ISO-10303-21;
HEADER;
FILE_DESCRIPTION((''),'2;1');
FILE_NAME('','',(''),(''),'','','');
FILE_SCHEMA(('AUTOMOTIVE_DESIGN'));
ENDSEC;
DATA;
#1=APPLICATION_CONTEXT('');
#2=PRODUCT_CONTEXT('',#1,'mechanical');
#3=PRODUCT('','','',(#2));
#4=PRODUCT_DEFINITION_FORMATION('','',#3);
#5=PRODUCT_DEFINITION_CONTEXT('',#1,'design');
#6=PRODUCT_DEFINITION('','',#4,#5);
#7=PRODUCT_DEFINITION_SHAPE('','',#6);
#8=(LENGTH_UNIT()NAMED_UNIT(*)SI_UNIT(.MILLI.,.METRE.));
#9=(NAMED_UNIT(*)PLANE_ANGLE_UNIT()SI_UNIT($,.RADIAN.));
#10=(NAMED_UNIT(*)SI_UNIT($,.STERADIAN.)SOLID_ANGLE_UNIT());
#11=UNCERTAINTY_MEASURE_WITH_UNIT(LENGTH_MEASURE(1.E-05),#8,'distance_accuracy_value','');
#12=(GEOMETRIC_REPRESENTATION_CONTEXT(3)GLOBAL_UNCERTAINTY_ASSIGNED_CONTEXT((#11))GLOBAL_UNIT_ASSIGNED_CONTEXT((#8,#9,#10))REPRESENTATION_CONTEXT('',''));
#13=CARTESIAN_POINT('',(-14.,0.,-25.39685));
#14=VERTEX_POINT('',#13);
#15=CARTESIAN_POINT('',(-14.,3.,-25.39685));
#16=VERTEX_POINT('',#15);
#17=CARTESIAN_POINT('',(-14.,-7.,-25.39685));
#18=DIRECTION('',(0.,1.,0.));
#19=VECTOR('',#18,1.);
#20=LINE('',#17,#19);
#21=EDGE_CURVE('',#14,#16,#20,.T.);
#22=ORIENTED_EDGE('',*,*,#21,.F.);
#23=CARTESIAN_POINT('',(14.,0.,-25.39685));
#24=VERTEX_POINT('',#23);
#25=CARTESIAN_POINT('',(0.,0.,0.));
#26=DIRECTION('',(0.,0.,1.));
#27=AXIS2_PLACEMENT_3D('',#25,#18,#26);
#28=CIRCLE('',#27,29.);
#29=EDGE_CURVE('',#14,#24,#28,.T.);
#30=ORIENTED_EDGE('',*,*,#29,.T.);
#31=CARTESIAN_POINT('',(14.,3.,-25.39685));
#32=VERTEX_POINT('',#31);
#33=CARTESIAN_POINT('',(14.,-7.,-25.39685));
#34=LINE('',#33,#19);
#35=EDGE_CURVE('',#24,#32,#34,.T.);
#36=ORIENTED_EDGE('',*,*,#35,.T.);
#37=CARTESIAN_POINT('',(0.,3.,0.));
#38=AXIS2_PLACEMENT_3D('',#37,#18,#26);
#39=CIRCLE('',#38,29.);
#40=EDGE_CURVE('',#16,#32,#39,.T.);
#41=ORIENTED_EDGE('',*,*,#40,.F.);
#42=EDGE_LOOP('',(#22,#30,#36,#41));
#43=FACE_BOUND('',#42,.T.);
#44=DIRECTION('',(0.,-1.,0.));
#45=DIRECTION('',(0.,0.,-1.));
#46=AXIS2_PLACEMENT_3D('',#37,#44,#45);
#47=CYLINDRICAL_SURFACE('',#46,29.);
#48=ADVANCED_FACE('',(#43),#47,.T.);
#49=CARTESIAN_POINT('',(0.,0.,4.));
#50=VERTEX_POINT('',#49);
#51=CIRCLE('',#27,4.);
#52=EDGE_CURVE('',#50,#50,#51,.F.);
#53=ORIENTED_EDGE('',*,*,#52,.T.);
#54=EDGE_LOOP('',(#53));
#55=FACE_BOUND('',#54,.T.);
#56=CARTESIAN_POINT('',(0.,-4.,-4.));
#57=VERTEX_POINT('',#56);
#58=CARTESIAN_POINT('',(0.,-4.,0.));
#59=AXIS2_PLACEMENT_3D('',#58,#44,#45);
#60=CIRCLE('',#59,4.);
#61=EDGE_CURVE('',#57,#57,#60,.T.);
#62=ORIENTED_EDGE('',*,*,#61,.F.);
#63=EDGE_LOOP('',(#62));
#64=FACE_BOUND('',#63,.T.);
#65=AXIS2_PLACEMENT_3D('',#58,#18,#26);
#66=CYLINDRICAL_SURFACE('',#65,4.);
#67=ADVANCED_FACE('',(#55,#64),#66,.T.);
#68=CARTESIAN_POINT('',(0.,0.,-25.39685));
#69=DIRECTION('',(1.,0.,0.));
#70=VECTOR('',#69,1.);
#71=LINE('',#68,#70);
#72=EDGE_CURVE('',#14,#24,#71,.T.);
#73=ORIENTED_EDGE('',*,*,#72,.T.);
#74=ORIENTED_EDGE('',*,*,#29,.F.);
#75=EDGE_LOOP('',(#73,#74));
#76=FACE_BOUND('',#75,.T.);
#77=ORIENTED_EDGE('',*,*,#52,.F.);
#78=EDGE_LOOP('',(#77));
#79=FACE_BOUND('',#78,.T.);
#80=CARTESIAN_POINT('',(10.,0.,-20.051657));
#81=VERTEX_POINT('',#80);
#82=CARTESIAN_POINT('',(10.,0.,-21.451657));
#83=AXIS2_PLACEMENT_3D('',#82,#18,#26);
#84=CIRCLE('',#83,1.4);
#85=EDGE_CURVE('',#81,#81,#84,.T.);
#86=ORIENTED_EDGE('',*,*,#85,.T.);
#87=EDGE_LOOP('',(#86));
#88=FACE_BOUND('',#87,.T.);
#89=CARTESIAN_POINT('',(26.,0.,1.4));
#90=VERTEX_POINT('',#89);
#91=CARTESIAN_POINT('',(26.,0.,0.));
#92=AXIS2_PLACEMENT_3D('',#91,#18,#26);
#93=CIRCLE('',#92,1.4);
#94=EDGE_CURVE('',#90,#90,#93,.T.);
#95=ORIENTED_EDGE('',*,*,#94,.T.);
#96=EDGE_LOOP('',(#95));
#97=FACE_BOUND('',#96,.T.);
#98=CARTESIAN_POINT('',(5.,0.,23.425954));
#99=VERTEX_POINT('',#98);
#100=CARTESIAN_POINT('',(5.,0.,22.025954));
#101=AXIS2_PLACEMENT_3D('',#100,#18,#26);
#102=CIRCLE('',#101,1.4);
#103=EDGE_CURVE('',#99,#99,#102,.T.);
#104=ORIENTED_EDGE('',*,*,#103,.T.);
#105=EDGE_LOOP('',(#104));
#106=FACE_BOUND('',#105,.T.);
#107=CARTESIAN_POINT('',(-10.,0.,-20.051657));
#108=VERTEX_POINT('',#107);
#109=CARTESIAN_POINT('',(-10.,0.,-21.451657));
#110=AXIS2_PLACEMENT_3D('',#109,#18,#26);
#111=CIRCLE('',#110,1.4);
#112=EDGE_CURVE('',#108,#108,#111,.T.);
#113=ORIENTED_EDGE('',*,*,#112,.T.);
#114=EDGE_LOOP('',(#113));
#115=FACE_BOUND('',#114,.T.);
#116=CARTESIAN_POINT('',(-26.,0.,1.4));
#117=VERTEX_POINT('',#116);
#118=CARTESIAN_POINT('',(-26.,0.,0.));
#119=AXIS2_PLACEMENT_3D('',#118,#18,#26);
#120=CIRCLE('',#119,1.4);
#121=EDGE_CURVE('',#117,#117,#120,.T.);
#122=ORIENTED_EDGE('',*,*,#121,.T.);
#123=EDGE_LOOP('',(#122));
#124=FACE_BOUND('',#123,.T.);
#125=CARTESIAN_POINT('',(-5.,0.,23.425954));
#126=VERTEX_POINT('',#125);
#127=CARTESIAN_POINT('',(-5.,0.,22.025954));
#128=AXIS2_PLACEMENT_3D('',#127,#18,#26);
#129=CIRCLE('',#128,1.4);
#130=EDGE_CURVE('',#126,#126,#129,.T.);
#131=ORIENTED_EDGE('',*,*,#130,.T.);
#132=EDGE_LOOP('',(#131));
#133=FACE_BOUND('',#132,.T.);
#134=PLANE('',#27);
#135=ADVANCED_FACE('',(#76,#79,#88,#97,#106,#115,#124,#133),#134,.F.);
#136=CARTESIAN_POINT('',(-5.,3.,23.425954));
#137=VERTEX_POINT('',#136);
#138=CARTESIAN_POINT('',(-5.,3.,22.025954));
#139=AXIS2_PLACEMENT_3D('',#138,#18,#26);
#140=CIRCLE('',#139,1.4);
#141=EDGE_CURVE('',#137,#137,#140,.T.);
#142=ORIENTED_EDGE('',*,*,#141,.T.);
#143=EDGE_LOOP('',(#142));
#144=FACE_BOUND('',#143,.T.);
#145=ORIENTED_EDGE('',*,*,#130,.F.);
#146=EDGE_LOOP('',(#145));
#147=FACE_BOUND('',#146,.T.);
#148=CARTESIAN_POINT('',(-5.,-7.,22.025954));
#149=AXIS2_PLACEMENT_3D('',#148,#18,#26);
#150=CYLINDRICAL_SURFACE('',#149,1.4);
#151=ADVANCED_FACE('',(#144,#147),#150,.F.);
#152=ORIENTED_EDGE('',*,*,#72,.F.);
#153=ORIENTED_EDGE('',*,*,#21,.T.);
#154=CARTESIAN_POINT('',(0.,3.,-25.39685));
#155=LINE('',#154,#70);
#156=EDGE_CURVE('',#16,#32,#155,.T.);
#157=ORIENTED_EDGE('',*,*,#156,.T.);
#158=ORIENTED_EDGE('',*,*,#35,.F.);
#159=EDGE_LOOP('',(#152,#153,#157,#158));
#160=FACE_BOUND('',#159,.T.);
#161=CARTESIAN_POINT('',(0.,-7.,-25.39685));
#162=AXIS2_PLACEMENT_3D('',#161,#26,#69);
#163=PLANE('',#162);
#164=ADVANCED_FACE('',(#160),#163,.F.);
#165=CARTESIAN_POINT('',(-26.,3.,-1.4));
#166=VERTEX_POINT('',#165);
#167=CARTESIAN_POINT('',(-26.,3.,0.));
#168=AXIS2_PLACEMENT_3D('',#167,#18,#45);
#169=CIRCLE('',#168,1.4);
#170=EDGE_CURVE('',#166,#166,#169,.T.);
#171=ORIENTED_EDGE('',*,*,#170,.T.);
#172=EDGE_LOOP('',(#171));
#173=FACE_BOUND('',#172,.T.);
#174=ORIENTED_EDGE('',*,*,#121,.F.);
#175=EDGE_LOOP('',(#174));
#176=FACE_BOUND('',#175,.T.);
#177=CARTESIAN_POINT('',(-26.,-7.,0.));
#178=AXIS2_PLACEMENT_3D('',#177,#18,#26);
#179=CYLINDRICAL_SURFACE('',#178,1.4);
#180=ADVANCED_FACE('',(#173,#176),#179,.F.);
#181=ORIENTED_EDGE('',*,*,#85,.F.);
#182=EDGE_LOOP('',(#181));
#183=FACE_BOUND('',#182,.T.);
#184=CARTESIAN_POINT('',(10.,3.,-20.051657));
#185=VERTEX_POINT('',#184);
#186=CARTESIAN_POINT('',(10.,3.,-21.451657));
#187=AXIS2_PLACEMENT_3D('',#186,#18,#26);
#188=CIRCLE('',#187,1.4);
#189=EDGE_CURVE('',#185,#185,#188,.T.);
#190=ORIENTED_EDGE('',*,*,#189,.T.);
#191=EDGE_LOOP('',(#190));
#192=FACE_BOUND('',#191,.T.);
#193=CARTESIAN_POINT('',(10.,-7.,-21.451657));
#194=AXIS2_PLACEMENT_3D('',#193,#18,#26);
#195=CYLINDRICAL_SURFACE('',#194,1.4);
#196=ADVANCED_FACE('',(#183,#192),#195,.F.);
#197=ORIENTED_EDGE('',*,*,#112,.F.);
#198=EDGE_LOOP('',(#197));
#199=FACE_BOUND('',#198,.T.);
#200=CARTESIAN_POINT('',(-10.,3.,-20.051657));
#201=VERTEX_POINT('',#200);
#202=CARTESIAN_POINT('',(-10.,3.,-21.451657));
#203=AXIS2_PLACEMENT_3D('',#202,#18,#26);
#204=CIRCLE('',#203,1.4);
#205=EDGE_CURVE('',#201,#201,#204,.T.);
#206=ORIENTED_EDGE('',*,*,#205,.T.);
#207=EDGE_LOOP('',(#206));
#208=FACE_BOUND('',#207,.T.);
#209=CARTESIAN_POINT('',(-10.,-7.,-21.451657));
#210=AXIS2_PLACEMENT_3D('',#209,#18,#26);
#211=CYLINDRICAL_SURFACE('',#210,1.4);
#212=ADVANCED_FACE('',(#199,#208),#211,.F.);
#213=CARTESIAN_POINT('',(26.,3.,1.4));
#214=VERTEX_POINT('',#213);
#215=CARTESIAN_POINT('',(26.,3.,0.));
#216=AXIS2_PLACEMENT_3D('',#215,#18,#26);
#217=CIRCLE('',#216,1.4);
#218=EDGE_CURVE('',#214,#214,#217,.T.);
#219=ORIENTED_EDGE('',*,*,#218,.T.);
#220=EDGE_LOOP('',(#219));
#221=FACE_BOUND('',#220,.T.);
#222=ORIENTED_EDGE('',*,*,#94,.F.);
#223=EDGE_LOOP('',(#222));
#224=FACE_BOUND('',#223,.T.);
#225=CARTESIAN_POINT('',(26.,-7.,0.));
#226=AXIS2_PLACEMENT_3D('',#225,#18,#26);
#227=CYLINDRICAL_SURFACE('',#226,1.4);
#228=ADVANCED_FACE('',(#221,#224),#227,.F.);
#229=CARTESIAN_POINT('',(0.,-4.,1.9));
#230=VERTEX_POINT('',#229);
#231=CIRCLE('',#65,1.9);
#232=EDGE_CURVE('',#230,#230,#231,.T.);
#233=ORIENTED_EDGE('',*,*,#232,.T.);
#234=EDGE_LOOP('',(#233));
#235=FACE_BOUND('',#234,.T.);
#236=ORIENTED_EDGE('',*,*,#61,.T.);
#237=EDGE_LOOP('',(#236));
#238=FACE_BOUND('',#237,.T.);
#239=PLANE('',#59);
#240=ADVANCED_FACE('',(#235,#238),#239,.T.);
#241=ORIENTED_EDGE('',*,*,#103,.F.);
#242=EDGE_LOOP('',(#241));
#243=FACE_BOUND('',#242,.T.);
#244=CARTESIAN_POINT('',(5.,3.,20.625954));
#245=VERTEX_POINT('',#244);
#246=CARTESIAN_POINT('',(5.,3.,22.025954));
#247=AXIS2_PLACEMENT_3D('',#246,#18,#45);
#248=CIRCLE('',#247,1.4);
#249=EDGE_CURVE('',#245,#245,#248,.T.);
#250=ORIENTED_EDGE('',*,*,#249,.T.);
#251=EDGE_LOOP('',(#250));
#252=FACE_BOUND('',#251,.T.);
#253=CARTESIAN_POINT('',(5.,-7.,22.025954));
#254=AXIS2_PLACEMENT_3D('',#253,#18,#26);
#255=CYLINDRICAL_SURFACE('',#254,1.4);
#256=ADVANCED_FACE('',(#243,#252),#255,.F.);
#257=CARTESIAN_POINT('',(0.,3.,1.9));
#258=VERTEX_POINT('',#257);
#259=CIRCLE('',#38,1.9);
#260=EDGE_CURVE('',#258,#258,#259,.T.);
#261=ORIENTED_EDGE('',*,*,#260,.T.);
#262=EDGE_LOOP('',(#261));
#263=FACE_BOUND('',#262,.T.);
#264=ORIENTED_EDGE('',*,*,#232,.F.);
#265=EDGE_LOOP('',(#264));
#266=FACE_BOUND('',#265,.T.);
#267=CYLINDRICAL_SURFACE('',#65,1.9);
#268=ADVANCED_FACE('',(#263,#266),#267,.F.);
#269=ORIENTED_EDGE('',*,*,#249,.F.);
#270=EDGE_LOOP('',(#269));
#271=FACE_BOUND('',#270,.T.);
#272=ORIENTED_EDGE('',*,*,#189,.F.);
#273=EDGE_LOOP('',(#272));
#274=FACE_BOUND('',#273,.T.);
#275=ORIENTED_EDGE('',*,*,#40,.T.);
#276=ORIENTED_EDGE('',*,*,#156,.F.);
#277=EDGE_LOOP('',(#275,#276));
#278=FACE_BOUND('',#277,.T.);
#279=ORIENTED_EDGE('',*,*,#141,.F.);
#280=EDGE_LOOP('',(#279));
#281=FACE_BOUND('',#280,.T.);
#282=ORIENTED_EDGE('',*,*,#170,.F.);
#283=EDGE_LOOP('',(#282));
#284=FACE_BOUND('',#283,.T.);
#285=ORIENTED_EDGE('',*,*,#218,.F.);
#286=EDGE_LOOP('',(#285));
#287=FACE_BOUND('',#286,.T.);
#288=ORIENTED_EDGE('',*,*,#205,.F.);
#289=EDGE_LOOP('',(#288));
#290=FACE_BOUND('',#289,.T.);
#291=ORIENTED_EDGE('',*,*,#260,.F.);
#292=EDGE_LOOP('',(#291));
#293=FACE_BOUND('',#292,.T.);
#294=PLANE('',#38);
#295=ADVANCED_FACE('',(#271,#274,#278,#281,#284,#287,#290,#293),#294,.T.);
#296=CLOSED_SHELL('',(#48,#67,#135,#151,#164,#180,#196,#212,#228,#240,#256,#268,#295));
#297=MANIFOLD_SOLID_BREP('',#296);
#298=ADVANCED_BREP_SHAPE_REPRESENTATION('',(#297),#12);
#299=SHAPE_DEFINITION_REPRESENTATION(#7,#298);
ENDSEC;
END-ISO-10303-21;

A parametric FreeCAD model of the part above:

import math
import FreeCAD as App
import Part
import Sketcher
Q = App.Units.Quantity

doc = App.newDocument("Part")
params = doc.addObject("Spreadsheet::Sheet", "Params")
for row, (alias, value) in enumerate([
    ("sketch1_diameter", "58 mm"),
    ("pad1_length", "3 mm"),
    ("sketch2_diameter", "8 mm"),
    ("pad2_length", "4 mm"),
    ("sketch3_diameter", "3.8 mm"),
    ("sketch4_diameter", "2.8 mm"),
    ("pocket2_length", "10 mm"),
    ("sketch5_diameter", "2.8 mm"),
    ("pocket3_length", "10 mm"),
    ("sketch6_radius", "29 mm"),
    ("sketch6_width", "28 mm"),
    ("pocket4_length", "10 mm"),
    ("sketch7_diameter", "2.8 mm"),
    ("pocket5_length", "10 mm"),
], start=1):
    params.set(f"A{row}", alias)
    params.set(f"B{row}", "=" + value)
    params.setAlias(f"B{row}", alias)

body = doc.addObject("PartDesign::Body", "Body")

# Sketch on XZ plane
sketch1 = doc.addObject("Sketcher::SketchObject", "Sketch")
body.addObject(sketch1)
sketch1.AttachmentSupport = (doc.XZ_Plane, [""])
sketch1.MapMode = "FlatFace"
sketch1.addGeometry(Part.Circle(App.Vector(0, 0, 0), App.Vector(0, 0, 1), 29), False)
sketch1.addConstraint([
    Sketcher.Constraint("Coincident", 0, 3, -1, 1),
    Sketcher.Constraint("Diameter", 0, Q("58 mm")),
])
sketch1.setExpression("Constraints[1]", "Params.sketch1_diameter")
pad1 = doc.addObject("PartDesign::Pad", "Pad")
body.addObject(pad1)
pad1.Profile = sketch1
pad1.setExpression("Length", "Params.pad1_length")
pad1.Reversed = True

# Sketch on XZ plane
sketch2 = doc.addObject("Sketcher::SketchObject", "Sketch001")
body.addObject(sketch2)
sketch2.AttachmentSupport = (doc.XZ_Plane, [""])
sketch2.MapMode = "FlatFace"
sketch2.addGeometry(Part.Circle(App.Vector(0, 0, 0), App.Vector(0, 0, 1), 4), False)
sketch2.addConstraint([
    Sketcher.Constraint("Coincident", 0, 3, -1, 1),
    Sketcher.Constraint("Diameter", 0, Q("8 mm")),
])
sketch2.setExpression("Constraints[1]", "Params.sketch2_diameter")
pad2 = doc.addObject("PartDesign::Pad", "Pad001")
body.addObject(pad2)
pad2.Profile = sketch2
pad2.setExpression("Length", "Params.pad2_length")

# Sketch on XZ plane
sketch3 = doc.addObject("Sketcher::SketchObject", "Sketch002")
body.addObject(sketch3)
sketch3.AttachmentSupport = (doc.XZ_Plane, [""])
sketch3.MapMode = "FlatFace"
sketch3.AttachmentOffset = App.Placement(App.Vector(0, 0, -3), App.Rotation())
sketch3.addGeometry(Part.Circle(App.Vector(0, 0, 0), App.Vector(0, 0, 1), 1.9), False)
sketch3.addConstraint([
    Sketcher.Constraint("Coincident", 0, 3, -1, 1),
    Sketcher.Constraint("Diameter", 0, Q("3.8 mm")),
])
sketch3.setExpression("Constraints[1]", "Params.sketch3_diameter")
pocket1 = doc.addObject("PartDesign::Pocket", "Pocket")
body.addObject(pocket1)
pocket1.Profile = sketch3
pocket1.Type = "ThroughAll"
pocket1.Reversed = True

# Sketch on XZ plane
sketch4 = doc.addObject("Sketcher::SketchObject", "Sketch003")
body.addObject(sketch4)
sketch4.AttachmentSupport = (doc.XZ_Plane, [""])
sketch4.MapMode = "FlatFace"
sketch4.AttachmentOffset = App.Placement(App.Vector(0, 0, -3), App.Rotation())
sketch4.addGeometry([
    Part.Circle(App.Vector(26, 0, 0), App.Vector(0, 0, 1), 1.4),
    Part.Circle(App.Vector(-26, 0, 0), App.Vector(0, 0, 1), 1.4),
], False)
sketch4.addConstraint([
    Sketcher.Constraint("Equal", 0, 1),
    Sketcher.Constraint("Symmetric", 0, 3, 1, 3, -1, 1),
    Sketcher.Constraint("PointOnObject", 0, 3, -1),
    Sketcher.Constraint("Diameter", 0, Q("2.8 mm")),
    Sketcher.Constraint("DistanceX", -1, 1, 0, 3, Q("26 mm")),
])
sketch4.setExpression("Constraints[3]", "Params.sketch4_diameter")
pocket2 = doc.addObject("PartDesign::Pocket", "Pocket001")
body.addObject(pocket2)
pocket2.Profile = sketch4
pocket2.setExpression("Length", "Params.pocket2_length")
pocket2.Reversed = True

# Sketch on XZ plane
sketch5 = doc.addObject("Sketcher::SketchObject", "Sketch004")
body.addObject(sketch5)
sketch5.AttachmentSupport = (doc.XZ_Plane, [""])
sketch5.MapMode = "FlatFace"
sketch5.AttachmentOffset = App.Placement(App.Vector(0, 0, -3), App.Rotation())
sketch5.addGeometry([
    Part.Circle(App.Vector(-10, -21.5, 0), App.Vector(0, 0, 1), 1.4),
    Part.Circle(App.Vector(10, -21.5, 0), App.Vector(0, 0, 1), 1.4),
], False)
sketch5.addConstraint([
    Sketcher.Constraint("Equal", 0, 1),
    Sketcher.Constraint("Symmetric", 0, 3, 1, 3, -2),
    Sketcher.Constraint("Diameter", 0, Q("2.8 mm")),
    Sketcher.Constraint("DistanceX", 0, 3, -1, 1, Q("10 mm")),
    Sketcher.Constraint("DistanceY", 0, 3, -1, 1, Q("21.451657 mm")),
])
sketch5.setExpression("Constraints[2]", "Params.sketch5_diameter")
pocket3 = doc.addObject("PartDesign::Pocket", "Pocket002")
body.addObject(pocket3)
pocket3.Profile = sketch5
pocket3.setExpression("Length", "Params.pocket3_length")
pocket3.Reversed = True

# Sketch on XZ plane
sketch6 = doc.addObject("Sketcher::SketchObject", "Sketch005")
body.addObject(sketch6)
sketch6.AttachmentSupport = (doc.XZ_Plane, [""])
sketch6.MapMode = "FlatFace"
sketch6.AttachmentOffset = App.Placement(App.Vector(0, 0, 7), App.Rotation())
sketch6.addGeometry([
    Part.LineSegment(App.Vector(-14, -25, 0), App.Vector(14, -25, 0)),
    Part.ArcOfCircle(Part.Circle(App.Vector(0, 0, 0), App.Vector(0, 0, 1), 29), math.radians(-90), math.radians(-61)),
    Part.ArcOfCircle(Part.Circle(App.Vector(0, 0, 0), App.Vector(0, 0, 1), 29), math.radians(-119), math.radians(-90)),
], False)
sketch6.addConstraint([
    Sketcher.Constraint("Coincident", 0, 2, 1, 2),
    Sketcher.Constraint("Tangent", 1, 1, 2, 2),
    Sketcher.Constraint("Coincident", 2, 1, 0, 1),
    Sketcher.Constraint("Horizontal", 0),
    Sketcher.Constraint("Coincident", 1, 3, -1, 1),
    Sketcher.Constraint("Equal", 1, 2),
    Sketcher.Constraint("PointOnObject", 1, 1, -2),
    Sketcher.Constraint("Radius", 1, Q("29 mm")),
    Sketcher.Constraint("DistanceX", 0, 1, 0, 2, Q("28 mm")),
])
sketch6.setExpression("Constraints[7]", "Params.sketch6_radius")
sketch6.setExpression("Constraints[8]", "Params.sketch6_width")
pocket4 = doc.addObject("PartDesign::Pocket", "Pocket003")
body.addObject(pocket4)
pocket4.Profile = sketch6
pocket4.setExpression("Length", "Params.pocket4_length")

# Sketch on XZ plane
sketch7 = doc.addObject("Sketcher::SketchObject", "Sketch006")
body.addObject(sketch7)
sketch7.AttachmentSupport = (doc.XZ_Plane, [""])
sketch7.MapMode = "FlatFace"
sketch7.AttachmentOffset = App.Placement(App.Vector(0, 0, -3), App.Rotation())
sketch7.addGeometry([
    Part.Circle(App.Vector(-5, 22, 0), App.Vector(0, 0, 1), 1.4),
    Part.Circle(App.Vector(5, 22, 0), App.Vector(0, 0, 1), 1.4),
], False)
sketch7.addConstraint([
    Sketcher.Constraint("Equal", 0, 1),
    Sketcher.Constraint("Symmetric", 0, 3, 1, 3, -2),
    Sketcher.Constraint("Diameter", 0, Q("2.8 mm")),
    Sketcher.Constraint("DistanceX", 0, 3, -1, 1, Q("5 mm")),
    Sketcher.Constraint("DistanceY", -1, 1, 0, 3, Q("22.025954 mm")),
])
sketch7.setExpression("Constraints[2]", "Params.sketch7_diameter")
pocket5 = doc.addObject("PartDesign::Pocket", "Pocket004")
body.addObject(pocket5)
pocket5.Profile = sketch7
pocket5.setExpression("Length", "Params.pocket5_length")
pocket5.Reversed = True

doc.recompute()
